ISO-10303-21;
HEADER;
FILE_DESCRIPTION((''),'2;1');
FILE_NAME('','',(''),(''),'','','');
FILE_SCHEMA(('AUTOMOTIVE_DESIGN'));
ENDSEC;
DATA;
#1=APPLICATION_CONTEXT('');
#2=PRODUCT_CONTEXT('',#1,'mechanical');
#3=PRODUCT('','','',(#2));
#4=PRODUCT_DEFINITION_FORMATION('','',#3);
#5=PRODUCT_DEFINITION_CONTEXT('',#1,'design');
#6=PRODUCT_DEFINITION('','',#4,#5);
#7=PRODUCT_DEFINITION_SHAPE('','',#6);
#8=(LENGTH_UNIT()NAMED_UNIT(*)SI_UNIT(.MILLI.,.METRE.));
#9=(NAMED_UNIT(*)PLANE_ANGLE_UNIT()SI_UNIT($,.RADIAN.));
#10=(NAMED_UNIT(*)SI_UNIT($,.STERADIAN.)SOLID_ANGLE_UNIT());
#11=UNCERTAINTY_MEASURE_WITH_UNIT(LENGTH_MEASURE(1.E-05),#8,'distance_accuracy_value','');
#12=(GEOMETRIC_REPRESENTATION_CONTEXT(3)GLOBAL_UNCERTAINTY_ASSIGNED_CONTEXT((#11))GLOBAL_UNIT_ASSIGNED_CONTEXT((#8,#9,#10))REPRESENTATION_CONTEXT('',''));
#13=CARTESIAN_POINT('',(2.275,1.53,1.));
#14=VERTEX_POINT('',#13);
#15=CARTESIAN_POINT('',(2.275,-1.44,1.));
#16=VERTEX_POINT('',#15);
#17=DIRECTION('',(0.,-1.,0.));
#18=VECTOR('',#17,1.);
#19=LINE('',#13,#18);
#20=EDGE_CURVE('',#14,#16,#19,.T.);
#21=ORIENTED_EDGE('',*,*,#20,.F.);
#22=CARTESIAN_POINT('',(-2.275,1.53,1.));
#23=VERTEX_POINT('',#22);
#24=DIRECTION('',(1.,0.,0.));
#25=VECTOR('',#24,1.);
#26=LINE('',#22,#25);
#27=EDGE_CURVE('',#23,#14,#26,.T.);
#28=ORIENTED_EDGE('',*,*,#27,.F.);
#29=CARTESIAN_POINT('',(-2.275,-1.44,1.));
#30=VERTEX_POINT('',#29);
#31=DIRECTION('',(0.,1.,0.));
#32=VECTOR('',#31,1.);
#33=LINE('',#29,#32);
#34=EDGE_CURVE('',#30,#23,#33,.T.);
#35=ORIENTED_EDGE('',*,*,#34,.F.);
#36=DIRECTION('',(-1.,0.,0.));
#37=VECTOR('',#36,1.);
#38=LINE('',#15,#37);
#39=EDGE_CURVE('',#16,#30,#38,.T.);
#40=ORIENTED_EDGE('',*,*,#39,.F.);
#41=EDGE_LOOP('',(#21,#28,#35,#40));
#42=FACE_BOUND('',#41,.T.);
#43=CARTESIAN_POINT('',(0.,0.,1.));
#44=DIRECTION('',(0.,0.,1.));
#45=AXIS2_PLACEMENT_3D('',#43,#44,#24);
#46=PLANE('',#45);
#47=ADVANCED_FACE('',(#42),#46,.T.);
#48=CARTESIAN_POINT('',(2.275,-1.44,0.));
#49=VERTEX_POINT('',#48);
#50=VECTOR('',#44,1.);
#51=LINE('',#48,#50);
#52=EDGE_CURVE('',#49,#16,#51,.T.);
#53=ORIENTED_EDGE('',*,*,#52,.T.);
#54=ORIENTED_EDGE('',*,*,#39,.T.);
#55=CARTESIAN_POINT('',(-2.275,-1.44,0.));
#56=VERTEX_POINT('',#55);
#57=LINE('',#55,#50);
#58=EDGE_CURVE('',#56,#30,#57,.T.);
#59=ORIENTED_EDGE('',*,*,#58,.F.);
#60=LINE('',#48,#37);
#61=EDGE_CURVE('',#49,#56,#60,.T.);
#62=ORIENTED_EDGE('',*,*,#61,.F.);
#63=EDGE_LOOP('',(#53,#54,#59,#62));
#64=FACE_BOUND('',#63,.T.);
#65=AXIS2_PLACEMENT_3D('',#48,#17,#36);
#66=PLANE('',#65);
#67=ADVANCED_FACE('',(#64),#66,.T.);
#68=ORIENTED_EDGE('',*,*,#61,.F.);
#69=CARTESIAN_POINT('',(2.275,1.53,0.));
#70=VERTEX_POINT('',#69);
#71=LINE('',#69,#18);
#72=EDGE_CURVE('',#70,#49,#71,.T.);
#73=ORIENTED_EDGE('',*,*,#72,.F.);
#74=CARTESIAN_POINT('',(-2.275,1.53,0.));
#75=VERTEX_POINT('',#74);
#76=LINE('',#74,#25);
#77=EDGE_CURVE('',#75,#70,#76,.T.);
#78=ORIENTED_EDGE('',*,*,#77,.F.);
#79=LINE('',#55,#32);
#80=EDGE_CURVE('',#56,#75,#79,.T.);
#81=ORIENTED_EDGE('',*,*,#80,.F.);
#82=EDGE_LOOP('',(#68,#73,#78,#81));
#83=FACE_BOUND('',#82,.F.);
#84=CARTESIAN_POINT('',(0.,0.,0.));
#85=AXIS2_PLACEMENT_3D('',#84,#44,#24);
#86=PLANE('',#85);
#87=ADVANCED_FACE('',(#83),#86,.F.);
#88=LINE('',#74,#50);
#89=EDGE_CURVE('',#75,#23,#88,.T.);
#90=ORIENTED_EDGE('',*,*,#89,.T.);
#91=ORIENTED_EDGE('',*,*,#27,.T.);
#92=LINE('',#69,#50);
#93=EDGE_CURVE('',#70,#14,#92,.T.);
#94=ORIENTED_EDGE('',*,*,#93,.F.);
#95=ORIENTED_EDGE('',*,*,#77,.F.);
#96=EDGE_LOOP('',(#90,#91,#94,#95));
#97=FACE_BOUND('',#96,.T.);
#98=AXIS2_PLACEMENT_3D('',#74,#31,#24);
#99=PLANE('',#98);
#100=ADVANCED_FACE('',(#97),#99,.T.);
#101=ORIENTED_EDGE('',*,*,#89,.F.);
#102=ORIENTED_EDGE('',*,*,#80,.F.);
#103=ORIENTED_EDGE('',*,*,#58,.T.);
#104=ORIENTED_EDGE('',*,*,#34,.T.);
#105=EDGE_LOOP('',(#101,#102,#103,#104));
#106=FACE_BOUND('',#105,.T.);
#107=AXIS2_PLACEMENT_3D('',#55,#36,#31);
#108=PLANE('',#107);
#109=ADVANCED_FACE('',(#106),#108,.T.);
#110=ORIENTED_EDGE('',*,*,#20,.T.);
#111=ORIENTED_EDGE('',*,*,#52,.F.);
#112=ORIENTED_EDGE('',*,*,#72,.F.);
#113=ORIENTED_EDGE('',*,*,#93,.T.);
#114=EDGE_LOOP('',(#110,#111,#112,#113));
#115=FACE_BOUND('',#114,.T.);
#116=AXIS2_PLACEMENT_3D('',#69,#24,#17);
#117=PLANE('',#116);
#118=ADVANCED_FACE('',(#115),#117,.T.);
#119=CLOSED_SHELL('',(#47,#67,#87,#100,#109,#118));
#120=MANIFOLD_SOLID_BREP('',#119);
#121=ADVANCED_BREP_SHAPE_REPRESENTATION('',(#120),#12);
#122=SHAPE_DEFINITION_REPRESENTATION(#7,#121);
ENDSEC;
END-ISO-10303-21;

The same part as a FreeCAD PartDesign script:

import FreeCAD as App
import Part
import Sketcher

V = App.Vector
Q = App.Units.Quantity


def add_polygon(sketch, points):
    """Adds a closed chain of lines whose ends are joined by coincident constraints."""
    first, n = sketch.GeometryCount, len(points)
    for a, b in zip(points, points[1:] + points[:1]):
        sketch.addGeometry(Part.LineSegment(App.Vector(*a, 0), App.Vector(*b, 0)), False)
    for i in range(n):
        sketch.addConstraint(Sketcher.Constraint("Coincident", first + i, 2, first + (i + 1) % n, 1))

doc = App.newDocument("Part")
body = doc.addObject("PartDesign::Body", "Body")

# Sketch on XY plane
sketch1 = body.newObject("Sketcher::SketchObject", "Sketch")
sketch1.AttachmentSupport = (doc.getObject("XY_Plane"), [""])
sketch1.MapMode = "FlatFace"
add_polygon(sketch1, [(-2.3, 1.5), (-2.3, -1.4), (2.3, -1.4), (2.3, 1.5)])  # lines 0-3
sketch1.addConstraint([
    Sketcher.Constraint("Vertical", 0),
    Sketcher.Constraint("Horizontal", 1),
    Sketcher.Constraint("Vertical", 2),
    Sketcher.Constraint("Horizontal", 3),
    Sketcher.Constraint("DistanceX", 1, 1, 1, 2, Q("4.55 mm")),
    Sketcher.Constraint("DistanceY", 0, 2, 0, 1, Q("2.97 mm")),
    Sketcher.Constraint("DistanceY", 0, 2, -1, 1, Q("1.44 mm")),
    Sketcher.Constraint("DistanceX", 0, 2, -1, 1, Q("2.275 mm")),
])
pad1 = body.newObject("PartDesign::Pad", "Pad")
pad1.Profile = sketch1
pad1.Length = 1

doc.recompute()
